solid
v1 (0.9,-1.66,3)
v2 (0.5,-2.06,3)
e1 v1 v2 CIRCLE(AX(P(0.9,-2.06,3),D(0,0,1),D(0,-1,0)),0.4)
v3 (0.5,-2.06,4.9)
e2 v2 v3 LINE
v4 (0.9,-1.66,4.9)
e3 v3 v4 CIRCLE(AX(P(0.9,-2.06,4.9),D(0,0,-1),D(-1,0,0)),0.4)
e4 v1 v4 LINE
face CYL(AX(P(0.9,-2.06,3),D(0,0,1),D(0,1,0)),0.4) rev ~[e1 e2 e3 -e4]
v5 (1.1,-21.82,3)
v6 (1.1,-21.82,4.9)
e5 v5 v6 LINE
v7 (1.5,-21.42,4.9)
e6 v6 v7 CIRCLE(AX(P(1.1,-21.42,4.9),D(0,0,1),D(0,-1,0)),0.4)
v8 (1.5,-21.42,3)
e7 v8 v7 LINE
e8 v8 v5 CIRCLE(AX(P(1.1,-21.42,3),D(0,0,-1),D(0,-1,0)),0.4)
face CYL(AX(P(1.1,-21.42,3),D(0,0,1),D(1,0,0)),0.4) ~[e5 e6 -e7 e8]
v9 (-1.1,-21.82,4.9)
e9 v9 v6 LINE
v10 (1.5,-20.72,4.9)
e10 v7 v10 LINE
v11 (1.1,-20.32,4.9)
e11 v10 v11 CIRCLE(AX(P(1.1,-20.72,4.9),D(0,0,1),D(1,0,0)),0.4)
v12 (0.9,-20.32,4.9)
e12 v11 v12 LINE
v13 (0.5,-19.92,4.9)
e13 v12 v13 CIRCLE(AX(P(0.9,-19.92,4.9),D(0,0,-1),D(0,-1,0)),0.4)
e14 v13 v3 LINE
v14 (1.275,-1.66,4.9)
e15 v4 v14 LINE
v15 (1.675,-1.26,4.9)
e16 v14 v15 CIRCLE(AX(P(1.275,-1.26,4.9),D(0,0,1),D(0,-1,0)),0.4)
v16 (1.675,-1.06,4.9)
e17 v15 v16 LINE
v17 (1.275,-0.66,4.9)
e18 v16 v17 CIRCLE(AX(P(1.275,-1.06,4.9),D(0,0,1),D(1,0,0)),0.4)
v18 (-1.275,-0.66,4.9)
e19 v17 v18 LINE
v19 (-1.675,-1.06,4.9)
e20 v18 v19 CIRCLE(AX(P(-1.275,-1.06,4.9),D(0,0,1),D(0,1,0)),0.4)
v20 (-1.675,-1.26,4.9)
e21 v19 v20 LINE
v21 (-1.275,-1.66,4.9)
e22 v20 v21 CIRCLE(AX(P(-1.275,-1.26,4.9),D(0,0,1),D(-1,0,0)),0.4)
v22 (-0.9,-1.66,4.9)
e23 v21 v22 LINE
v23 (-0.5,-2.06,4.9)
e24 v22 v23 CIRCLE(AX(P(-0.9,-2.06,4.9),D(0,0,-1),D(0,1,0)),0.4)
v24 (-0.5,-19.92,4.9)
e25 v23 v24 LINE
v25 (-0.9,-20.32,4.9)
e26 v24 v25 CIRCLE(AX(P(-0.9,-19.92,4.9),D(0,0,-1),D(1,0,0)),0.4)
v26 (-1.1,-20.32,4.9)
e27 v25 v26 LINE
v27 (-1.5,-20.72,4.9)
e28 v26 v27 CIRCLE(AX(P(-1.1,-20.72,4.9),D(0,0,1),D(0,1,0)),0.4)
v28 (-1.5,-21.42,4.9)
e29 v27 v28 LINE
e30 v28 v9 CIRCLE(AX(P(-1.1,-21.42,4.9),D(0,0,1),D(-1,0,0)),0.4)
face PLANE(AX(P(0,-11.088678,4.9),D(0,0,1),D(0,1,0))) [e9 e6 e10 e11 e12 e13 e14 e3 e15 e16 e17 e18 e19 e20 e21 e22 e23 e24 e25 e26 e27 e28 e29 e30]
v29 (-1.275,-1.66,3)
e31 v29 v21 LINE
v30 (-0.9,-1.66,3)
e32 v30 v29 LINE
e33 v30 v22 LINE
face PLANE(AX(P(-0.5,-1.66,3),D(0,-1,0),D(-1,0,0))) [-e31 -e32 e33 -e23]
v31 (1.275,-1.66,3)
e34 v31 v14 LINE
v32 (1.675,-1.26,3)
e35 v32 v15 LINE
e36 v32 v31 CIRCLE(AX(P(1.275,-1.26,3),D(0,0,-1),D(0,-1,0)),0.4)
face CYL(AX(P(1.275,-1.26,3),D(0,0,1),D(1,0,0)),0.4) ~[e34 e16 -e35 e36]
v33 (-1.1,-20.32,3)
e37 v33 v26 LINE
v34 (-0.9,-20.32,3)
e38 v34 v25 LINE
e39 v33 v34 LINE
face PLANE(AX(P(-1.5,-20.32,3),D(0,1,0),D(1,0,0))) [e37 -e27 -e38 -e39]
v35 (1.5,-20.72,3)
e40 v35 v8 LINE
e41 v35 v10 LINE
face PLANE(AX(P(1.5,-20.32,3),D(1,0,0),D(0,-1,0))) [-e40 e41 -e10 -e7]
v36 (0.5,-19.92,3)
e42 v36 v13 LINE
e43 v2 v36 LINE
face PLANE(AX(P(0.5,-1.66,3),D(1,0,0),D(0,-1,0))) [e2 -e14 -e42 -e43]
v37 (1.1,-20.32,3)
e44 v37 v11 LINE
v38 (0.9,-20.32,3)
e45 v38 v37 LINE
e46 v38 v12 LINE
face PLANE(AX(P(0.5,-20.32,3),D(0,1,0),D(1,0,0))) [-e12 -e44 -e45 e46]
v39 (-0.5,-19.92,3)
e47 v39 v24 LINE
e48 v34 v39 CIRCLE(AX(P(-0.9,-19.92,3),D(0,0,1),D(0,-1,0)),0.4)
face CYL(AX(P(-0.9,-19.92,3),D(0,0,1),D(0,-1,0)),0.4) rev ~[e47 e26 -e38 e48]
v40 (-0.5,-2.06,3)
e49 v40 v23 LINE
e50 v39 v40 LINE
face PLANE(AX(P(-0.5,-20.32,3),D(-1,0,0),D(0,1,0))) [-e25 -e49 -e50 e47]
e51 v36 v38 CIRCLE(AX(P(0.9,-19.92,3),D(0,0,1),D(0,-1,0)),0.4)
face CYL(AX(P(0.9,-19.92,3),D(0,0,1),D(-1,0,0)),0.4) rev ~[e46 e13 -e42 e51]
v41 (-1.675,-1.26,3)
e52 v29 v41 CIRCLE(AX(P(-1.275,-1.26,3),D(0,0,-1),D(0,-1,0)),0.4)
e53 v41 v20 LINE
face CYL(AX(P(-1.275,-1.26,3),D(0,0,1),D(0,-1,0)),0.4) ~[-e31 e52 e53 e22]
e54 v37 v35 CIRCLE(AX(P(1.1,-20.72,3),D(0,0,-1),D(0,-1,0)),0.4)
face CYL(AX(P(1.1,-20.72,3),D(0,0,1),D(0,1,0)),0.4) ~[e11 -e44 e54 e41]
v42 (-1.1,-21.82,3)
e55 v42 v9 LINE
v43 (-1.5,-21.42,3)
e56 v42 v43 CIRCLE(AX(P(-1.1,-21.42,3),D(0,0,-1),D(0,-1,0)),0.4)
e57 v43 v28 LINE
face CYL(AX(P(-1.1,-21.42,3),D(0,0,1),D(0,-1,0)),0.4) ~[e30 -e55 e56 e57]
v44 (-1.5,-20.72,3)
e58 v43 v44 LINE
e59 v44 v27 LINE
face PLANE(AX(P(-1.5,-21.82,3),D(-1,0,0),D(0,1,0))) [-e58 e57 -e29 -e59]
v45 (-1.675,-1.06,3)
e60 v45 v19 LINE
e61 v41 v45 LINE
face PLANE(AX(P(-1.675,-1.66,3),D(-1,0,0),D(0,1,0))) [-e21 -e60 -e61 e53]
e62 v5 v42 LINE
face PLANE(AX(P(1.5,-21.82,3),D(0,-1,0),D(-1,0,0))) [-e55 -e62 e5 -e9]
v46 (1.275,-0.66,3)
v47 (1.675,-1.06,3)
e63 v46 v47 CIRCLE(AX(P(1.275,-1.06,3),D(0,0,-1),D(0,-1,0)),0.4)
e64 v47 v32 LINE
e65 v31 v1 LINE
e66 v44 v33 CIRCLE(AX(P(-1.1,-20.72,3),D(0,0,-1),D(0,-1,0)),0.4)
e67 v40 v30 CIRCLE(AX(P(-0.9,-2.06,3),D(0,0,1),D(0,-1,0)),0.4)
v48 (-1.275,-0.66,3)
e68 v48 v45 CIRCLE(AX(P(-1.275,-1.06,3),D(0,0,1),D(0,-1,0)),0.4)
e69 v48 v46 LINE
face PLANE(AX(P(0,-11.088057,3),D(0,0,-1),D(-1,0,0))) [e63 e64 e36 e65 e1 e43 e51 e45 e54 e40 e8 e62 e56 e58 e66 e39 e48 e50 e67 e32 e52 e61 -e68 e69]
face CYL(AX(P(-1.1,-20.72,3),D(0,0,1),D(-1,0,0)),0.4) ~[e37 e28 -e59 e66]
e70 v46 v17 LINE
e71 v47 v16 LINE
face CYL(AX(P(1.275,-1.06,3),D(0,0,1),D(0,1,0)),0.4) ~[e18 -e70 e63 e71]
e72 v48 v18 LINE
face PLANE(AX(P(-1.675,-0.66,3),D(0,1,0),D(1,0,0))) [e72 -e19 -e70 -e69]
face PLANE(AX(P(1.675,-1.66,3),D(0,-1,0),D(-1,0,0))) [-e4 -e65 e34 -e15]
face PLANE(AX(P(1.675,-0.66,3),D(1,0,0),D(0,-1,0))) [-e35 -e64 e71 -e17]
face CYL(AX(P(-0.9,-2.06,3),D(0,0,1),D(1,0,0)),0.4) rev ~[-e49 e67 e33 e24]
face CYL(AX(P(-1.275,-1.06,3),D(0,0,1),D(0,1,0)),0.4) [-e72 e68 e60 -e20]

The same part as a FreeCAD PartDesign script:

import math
import FreeCAD as App
import Part
import Sketcher
from FreeCAD import Vector
Q = App.Units.Quantity


def edges_at(feature, points):
    """Names of the edges that pass closest to the given points."""
    edges = feature.Shape.Edges
    near = lambda p: min(range(len(edges)), key=lambda i: edges[i].distToShape(Part.Vertex(*p))[0])
    return sorted({f"Edge{near(p) + 1}" for p in points})


def add_polygon(sketch, points):
    """Adds a closed chain of lines whose ends are joined by coincident constraints."""
    first, n = sketch.GeometryCount, len(points)
    for a, b in zip(points, points[1:] + points[:1]):
        sketch.addGeometry(Part.LineSegment(App.Vector(*a, 0), App.Vector(*b, 0)), False)
    for i in range(n):
        sketch.addConstraint(Sketcher.Constraint("Coincident", first + i, 2, first + (i + 1) % n, 1))

doc = App.newDocument("Part")
body = doc.addObject("PartDesign::Body", "Body")

# Sketch on XY plane
sketch1 = doc.addObject("Sketcher::SketchObject", "Sketch")
body.addObject(sketch1)
sketch1.AttachmentSupport = (doc.XY_Plane, [""])
sketch1.MapMode = "FlatFace"
add_polygon(sketch1, [(1.7, -0.7), (-1.7, -0.7), (-1.7, -1.7), (-0.5, -1.7), (-0.5, -20.3), (-1.5, -20.3), (-1.5, -21.8), (1.5, -21.8), (1.5, -20.3), (0.5, -20.3), (0.5, -1.7), (1.7, -1.7)])  # lines 0-11
sketch1.addConstraint([
    Sketcher.Constraint("Horizontal", 0),
    Sketcher.Constraint("Vertical", 1),
    Sketcher.Constraint("Horizontal", 2),
    Sketcher.Constraint("Vertical", 3),
    Sketcher.Constraint("Horizontal", 4),
    Sketcher.Constraint("Vertical", 5),
    Sketcher.Constraint("Horizontal", 6),
    Sketcher.Constraint("Vertical", 7),
    Sketcher.Constraint("Horizontal", 8),
    Sketcher.Constraint("Vertical", 9),
    Sketcher.Constraint("Horizontal", 10),
    Sketcher.Constraint("Vertical", 11),
    Sketcher.Constraint("Symmetric", 4, 2, 7, 2, -2),
    Sketcher.Constraint("Symmetric", 2, 2, 9, 2, -2),
    Sketcher.Constraint("Equal", 2, 10),
    Sketcher.Constraint("Equal", 8, 1),
    Sketcher.Constraint("DistanceX", 4, 2, 4, 1, Q("1 mm")),
    Sketcher.Constraint("DistanceX", 6, 1, 6, 2, Q("3 mm")),
    Sketcher.Constraint("DistanceY", 5, 2, 5, 1, Q("1.5 mm")),
    Sketcher.Constraint("DistanceX", 0, 2, 0, 1, Q("3.35 mm")),
    Sketcher.Constraint("DistanceY", 3, 2, 3, 1, Q("18.66 mm")),
    Sketcher.Constraint("DistanceY", 0, 2, -1, 1, Q("0.66 mm")),
])
pad1 = doc.addObject("PartDesign::Pad", "Pad")
body.addObject(pad1)
pad1.Profile = sketch1
pad1.Length = 2
doc.recompute()

fillet = doc.addObject("PartDesign::Fillet", "Fillet")
body.addObject(fillet)
fillet.Base = (pad1, edges_at(pad1, [
    (-1.675, -1.66, 1),
    (-1.675, -0.66, 1),
    (1.675, -0.66, 1),
    (1.675, -1.66, 1),
    (0.5, -1.66, 1),
    (-0.5, -1.66, 1),
    (-0.5, -20.32, 1),
    (-1.5, -20.32, 1),
    (-1.5, -21.82, 1),
    (1.5, -21.82, 1),
    (1.5, -20.32, 1),
    (0.5, -20.32, 1),
]))
fillet.Radius = 0.4

# Sketch on XY plane
sketch2 = doc.addObject("Sketcher::SketchObject", "Sketch001")
body.addObject(sketch2)
sketch2.AttachmentSupport = (doc.XY_Plane, [""])
sketch2.MapMode = "FlatFace"
sketch2.AttachmentOffset = App.Placement(Vector(0, 0, 2), App.Rotation())
sketch2.addGeometry([
    Part.LineSegment(Vector(-1.27, -1.66, 0), Vector(-0.9, -1.66, 0)),  # 0
    Part.ArcOfCircle(Part.Circle(Vector(-0.9, -2.06, 0), Vector(0, 0, 1), 0.4), math.radians(0), math.radians(90)),  # 1
    Part.LineSegment(Vector(-0.5, -2.06, 0), Vector(-0.5, -19.92, 0)),  # 2
    Part.ArcOfCircle(Part.Circle(Vector(-0.9, -19.92, 0), Vector(0, 0, 1), 0.4), math.radians(-90), math.radians(0)),  # 3
    Part.LineSegment(Vector(-0.9, -20.32, 0), Vector(-1.1, -20.32, 0)),  # 4
    Part.ArcOfCircle(Part.Circle(Vector(-1.1, -20.72, 0), Vector(0, 0, 1), 0.4), math.radians(90), math.radians(180)),  # 5
    Part.LineSegment(Vector(-1.5, -20.72, 0), Vector(-1.5, -21.42, 0)),  # 6
    Part.ArcOfCircle(Part.Circle(Vector(-1.1, -21.42, 0), Vector(0, 0, 1), 0.4), math.radians(180), math.radians(270)),  # 7
    Part.LineSegment(Vector(-1.1, -21.82, 0), Vector(1.1, -21.82, 0)),  # 8
    Part.ArcOfCircle(Part.Circle(Vector(1.1, -21.42, 0), Vector(0, 0, 1), 0.4), math.radians(-90), math.radians(0)),  # 9
    Part.LineSegment(Vector(1.5, -21.42, 0), Vector(1.5, -20.72, 0)),  # 10
    Part.ArcOfCircle(Part.Circle(Vector(1.1, -20.72, 0), Vector(0, 0, 1), 0.4), math.radians(0), math.radians(90)),  # 11
    Part.LineSegment(Vector(1.1, -20.32, 0), Vector(0.9, -20.32, 0)),  # 12
    Part.ArcOfCircle(Part.Circle(Vector(0.9, -19.92, 0), Vector(0, 0, 1), 0.4), math.radians(180), math.radians(270)),  # 13
    Part.LineSegment(Vector(0.5, -19.92, 0), Vector(0.5, -2.06, 0)),  # 14
    Part.ArcOfCircle(Part.Circle(Vector(0.9, -2.06, 0), Vector(0, 0, 1), 0.4), math.radians(90), math.radians(180)),  # 15
    Part.LineSegment(Vector(0.9, -1.66, 0), Vector(1.27, -1.66, 0)),  # 16
    Part.ArcOfCircle(Part.Circle(Vector(1.27, -1.26, 0), Vector(0, 0, 1), 0.4), math.radians(-90), math.radians(0)),  # 17
    Part.LineSegment(Vector(1.68, -1.26, 0), Vector(1.68, -1.06, 0)),  # 18
    Part.ArcOfCircle(Part.Circle(Vector(1.27, -1.06, 0), Vector(0, 0, 1), 0.4), math.radians(0), math.radians(90)),  # 19
    Part.LineSegment(Vector(1.27, -0.66, 0), Vector(-1.27, -0.66, 0)),  # 20
    Part.ArcOfCircle(Part.Circle(Vector(-1.27, -1.06, 0), Vector(0, 0, 1), 0.4), math.radians(90), math.radians(180)),  # 21
    Part.LineSegment(Vector(-1.68, -1.06, 0), Vector(-1.68, -1.26, 0)),  # 22
    Part.ArcOfCircle(Part.Circle(Vector(-1.27, -1.26, 0), Vector(0, 0, 1), 0.4), math.radians(180), math.radians(270)),  # 23
], False)
sketch2.addConstraint([
    Sketcher.Constraint("Tangent", 0, 2, 1, 2),
    Sketcher.Constraint("Tangent", 1, 1, 2, 1),
    Sketcher.Constraint("Tangent", 2, 2, 3, 2),
    Sketcher.Constraint("Tangent", 3, 1, 4, 1),
    Sketcher.Constraint("Tangent", 4, 2, 5, 1),
    Sketcher.Constraint("Tangent", 5, 2, 6, 1),
    Sketcher.Constraint("Tangent", 6, 2, 7, 1),
    Sketcher.Constraint("Tangent", 7, 2, 8, 1),
    Sketcher.Constraint("Tangent", 8, 2, 9, 1),
    Sketcher.Constraint("Tangent", 9, 2, 10, 1),
    Sketcher.Constraint("Tangent", 10, 2, 11, 1),
    Sketcher.Constraint("Tangent", 11, 2, 12, 1),
    Sketcher.Constraint("Tangent", 12, 2, 13, 2),
    Sketcher.Constraint("Tangent", 13, 1, 14, 1),
    Sketcher.Constraint("Tangent", 14, 2, 15, 2),
    Sketcher.Constraint("Tangent", 15, 1, 16, 1),
    Sketcher.Constraint("Tangent", 16, 2, 17, 1),
    Sketcher.Constraint("Tangent", 17, 2, 18, 1),
    Sketcher.Constraint("Tangent", 18, 2, 19, 1),
    Sketcher.Constraint("Tangent", 19, 2, 20, 1),
    Sketcher.Constraint("Tangent", 20, 2, 21, 1),
    Sketcher.Constraint("Tangent", 21, 2, 22, 1),
    Sketcher.Constraint("Tangent", 22, 2, 23, 1),
    Sketcher.Constraint("Tangent", 23, 2, 0, 1),
    Sketcher.Constraint("Horizontal", 0),
    Sketcher.Constraint("Vertical", 2),
    Sketcher.Constraint("Horizontal", 4),
    Sketcher.Constraint("Vertical", 6),
    Sketcher.Constraint("Horizontal", 8),
    Sketcher.Constraint("Vertical", 10),
    Sketcher.Constraint("Horizontal", 12),
    Sketcher.Constraint("Vertical", 14),
    Sketcher.Constraint("Horizontal", 16),
    Sketcher.Constraint("Vertical", 18),
    Sketcher.Constraint("Horizontal", 20),
    Sketcher.Constraint("Vertical", 22),
    Sketcher.Constraint("Equal", 1, 3),
    Sketcher.Constraint("Equal", 3, 5),
    Sketcher.Constraint("Equal", 5, 7),
    Sketcher.Constraint("Equal", 7, 9),
    Sketcher.Constraint("Equal", 9, 11),
    Sketcher.Constraint("Equal", 11, 13),
    Sketcher.Constraint("Equal", 13, 15),
    Sketcher.Constraint("Equal", 15, 17),
    Sketcher.Constraint("Equal", 17, 19),
    Sketcher.Constraint("Equal", 19, 21),
    Sketcher.Constraint("Equal", 21, 23),
    Sketcher.Constraint("Symmetric", 5, 3, 11, 3, -2),
    Sketcher.Constraint("Symmetric", 1, 3, 15, 3, -2),
    Sketcher.Constraint("Equal", 0, 16),
    Sketcher.Constraint("Equal", 12, 18),
    Sketcher.Constraint("Radius", 1, Q("0.4 mm")),
    Sketcher.Constraint("DistanceX", 4, 2, 4, 1, Q("0.2 mm")),
    Sketcher.Constraint("DistanceX", 8, 1, 8, 2, Q("2.2 mm")),
    Sketcher.Constraint("DistanceY", 6, 2, 6, 1, Q("0.7 mm")),
    Sketcher.Constraint("DistanceX", 20, 2, 20, 1, Q("2.55 mm")),
    Sketcher.Constraint("DistanceY", 2, 2, 2, 1, Q("17.86 mm")),
    Sketcher.Constraint("DistanceY", 1, 3, -1, 1, Q("2.06 mm")),
])
pocket1 = doc.addObject("PartDesign::Pocket", "Pocket")
body.addObject(pocket1)
pocket1.Profile = sketch2
pocket1.Length = 0.1
body2 = doc.addObject("PartDesign::Body", "Body001")
doc.recompute()

body.Placement = App.Placement(Vector(0, 0, 3), App.Rotation(Vector(0, 0, 1), 0))
boolean = doc.addObject("PartDesign::Boolean", "Boolean")
body2.addObject(boolean)
boolean.Type = "Fuse"
boolean.addObjects([body])

doc.recompute()
